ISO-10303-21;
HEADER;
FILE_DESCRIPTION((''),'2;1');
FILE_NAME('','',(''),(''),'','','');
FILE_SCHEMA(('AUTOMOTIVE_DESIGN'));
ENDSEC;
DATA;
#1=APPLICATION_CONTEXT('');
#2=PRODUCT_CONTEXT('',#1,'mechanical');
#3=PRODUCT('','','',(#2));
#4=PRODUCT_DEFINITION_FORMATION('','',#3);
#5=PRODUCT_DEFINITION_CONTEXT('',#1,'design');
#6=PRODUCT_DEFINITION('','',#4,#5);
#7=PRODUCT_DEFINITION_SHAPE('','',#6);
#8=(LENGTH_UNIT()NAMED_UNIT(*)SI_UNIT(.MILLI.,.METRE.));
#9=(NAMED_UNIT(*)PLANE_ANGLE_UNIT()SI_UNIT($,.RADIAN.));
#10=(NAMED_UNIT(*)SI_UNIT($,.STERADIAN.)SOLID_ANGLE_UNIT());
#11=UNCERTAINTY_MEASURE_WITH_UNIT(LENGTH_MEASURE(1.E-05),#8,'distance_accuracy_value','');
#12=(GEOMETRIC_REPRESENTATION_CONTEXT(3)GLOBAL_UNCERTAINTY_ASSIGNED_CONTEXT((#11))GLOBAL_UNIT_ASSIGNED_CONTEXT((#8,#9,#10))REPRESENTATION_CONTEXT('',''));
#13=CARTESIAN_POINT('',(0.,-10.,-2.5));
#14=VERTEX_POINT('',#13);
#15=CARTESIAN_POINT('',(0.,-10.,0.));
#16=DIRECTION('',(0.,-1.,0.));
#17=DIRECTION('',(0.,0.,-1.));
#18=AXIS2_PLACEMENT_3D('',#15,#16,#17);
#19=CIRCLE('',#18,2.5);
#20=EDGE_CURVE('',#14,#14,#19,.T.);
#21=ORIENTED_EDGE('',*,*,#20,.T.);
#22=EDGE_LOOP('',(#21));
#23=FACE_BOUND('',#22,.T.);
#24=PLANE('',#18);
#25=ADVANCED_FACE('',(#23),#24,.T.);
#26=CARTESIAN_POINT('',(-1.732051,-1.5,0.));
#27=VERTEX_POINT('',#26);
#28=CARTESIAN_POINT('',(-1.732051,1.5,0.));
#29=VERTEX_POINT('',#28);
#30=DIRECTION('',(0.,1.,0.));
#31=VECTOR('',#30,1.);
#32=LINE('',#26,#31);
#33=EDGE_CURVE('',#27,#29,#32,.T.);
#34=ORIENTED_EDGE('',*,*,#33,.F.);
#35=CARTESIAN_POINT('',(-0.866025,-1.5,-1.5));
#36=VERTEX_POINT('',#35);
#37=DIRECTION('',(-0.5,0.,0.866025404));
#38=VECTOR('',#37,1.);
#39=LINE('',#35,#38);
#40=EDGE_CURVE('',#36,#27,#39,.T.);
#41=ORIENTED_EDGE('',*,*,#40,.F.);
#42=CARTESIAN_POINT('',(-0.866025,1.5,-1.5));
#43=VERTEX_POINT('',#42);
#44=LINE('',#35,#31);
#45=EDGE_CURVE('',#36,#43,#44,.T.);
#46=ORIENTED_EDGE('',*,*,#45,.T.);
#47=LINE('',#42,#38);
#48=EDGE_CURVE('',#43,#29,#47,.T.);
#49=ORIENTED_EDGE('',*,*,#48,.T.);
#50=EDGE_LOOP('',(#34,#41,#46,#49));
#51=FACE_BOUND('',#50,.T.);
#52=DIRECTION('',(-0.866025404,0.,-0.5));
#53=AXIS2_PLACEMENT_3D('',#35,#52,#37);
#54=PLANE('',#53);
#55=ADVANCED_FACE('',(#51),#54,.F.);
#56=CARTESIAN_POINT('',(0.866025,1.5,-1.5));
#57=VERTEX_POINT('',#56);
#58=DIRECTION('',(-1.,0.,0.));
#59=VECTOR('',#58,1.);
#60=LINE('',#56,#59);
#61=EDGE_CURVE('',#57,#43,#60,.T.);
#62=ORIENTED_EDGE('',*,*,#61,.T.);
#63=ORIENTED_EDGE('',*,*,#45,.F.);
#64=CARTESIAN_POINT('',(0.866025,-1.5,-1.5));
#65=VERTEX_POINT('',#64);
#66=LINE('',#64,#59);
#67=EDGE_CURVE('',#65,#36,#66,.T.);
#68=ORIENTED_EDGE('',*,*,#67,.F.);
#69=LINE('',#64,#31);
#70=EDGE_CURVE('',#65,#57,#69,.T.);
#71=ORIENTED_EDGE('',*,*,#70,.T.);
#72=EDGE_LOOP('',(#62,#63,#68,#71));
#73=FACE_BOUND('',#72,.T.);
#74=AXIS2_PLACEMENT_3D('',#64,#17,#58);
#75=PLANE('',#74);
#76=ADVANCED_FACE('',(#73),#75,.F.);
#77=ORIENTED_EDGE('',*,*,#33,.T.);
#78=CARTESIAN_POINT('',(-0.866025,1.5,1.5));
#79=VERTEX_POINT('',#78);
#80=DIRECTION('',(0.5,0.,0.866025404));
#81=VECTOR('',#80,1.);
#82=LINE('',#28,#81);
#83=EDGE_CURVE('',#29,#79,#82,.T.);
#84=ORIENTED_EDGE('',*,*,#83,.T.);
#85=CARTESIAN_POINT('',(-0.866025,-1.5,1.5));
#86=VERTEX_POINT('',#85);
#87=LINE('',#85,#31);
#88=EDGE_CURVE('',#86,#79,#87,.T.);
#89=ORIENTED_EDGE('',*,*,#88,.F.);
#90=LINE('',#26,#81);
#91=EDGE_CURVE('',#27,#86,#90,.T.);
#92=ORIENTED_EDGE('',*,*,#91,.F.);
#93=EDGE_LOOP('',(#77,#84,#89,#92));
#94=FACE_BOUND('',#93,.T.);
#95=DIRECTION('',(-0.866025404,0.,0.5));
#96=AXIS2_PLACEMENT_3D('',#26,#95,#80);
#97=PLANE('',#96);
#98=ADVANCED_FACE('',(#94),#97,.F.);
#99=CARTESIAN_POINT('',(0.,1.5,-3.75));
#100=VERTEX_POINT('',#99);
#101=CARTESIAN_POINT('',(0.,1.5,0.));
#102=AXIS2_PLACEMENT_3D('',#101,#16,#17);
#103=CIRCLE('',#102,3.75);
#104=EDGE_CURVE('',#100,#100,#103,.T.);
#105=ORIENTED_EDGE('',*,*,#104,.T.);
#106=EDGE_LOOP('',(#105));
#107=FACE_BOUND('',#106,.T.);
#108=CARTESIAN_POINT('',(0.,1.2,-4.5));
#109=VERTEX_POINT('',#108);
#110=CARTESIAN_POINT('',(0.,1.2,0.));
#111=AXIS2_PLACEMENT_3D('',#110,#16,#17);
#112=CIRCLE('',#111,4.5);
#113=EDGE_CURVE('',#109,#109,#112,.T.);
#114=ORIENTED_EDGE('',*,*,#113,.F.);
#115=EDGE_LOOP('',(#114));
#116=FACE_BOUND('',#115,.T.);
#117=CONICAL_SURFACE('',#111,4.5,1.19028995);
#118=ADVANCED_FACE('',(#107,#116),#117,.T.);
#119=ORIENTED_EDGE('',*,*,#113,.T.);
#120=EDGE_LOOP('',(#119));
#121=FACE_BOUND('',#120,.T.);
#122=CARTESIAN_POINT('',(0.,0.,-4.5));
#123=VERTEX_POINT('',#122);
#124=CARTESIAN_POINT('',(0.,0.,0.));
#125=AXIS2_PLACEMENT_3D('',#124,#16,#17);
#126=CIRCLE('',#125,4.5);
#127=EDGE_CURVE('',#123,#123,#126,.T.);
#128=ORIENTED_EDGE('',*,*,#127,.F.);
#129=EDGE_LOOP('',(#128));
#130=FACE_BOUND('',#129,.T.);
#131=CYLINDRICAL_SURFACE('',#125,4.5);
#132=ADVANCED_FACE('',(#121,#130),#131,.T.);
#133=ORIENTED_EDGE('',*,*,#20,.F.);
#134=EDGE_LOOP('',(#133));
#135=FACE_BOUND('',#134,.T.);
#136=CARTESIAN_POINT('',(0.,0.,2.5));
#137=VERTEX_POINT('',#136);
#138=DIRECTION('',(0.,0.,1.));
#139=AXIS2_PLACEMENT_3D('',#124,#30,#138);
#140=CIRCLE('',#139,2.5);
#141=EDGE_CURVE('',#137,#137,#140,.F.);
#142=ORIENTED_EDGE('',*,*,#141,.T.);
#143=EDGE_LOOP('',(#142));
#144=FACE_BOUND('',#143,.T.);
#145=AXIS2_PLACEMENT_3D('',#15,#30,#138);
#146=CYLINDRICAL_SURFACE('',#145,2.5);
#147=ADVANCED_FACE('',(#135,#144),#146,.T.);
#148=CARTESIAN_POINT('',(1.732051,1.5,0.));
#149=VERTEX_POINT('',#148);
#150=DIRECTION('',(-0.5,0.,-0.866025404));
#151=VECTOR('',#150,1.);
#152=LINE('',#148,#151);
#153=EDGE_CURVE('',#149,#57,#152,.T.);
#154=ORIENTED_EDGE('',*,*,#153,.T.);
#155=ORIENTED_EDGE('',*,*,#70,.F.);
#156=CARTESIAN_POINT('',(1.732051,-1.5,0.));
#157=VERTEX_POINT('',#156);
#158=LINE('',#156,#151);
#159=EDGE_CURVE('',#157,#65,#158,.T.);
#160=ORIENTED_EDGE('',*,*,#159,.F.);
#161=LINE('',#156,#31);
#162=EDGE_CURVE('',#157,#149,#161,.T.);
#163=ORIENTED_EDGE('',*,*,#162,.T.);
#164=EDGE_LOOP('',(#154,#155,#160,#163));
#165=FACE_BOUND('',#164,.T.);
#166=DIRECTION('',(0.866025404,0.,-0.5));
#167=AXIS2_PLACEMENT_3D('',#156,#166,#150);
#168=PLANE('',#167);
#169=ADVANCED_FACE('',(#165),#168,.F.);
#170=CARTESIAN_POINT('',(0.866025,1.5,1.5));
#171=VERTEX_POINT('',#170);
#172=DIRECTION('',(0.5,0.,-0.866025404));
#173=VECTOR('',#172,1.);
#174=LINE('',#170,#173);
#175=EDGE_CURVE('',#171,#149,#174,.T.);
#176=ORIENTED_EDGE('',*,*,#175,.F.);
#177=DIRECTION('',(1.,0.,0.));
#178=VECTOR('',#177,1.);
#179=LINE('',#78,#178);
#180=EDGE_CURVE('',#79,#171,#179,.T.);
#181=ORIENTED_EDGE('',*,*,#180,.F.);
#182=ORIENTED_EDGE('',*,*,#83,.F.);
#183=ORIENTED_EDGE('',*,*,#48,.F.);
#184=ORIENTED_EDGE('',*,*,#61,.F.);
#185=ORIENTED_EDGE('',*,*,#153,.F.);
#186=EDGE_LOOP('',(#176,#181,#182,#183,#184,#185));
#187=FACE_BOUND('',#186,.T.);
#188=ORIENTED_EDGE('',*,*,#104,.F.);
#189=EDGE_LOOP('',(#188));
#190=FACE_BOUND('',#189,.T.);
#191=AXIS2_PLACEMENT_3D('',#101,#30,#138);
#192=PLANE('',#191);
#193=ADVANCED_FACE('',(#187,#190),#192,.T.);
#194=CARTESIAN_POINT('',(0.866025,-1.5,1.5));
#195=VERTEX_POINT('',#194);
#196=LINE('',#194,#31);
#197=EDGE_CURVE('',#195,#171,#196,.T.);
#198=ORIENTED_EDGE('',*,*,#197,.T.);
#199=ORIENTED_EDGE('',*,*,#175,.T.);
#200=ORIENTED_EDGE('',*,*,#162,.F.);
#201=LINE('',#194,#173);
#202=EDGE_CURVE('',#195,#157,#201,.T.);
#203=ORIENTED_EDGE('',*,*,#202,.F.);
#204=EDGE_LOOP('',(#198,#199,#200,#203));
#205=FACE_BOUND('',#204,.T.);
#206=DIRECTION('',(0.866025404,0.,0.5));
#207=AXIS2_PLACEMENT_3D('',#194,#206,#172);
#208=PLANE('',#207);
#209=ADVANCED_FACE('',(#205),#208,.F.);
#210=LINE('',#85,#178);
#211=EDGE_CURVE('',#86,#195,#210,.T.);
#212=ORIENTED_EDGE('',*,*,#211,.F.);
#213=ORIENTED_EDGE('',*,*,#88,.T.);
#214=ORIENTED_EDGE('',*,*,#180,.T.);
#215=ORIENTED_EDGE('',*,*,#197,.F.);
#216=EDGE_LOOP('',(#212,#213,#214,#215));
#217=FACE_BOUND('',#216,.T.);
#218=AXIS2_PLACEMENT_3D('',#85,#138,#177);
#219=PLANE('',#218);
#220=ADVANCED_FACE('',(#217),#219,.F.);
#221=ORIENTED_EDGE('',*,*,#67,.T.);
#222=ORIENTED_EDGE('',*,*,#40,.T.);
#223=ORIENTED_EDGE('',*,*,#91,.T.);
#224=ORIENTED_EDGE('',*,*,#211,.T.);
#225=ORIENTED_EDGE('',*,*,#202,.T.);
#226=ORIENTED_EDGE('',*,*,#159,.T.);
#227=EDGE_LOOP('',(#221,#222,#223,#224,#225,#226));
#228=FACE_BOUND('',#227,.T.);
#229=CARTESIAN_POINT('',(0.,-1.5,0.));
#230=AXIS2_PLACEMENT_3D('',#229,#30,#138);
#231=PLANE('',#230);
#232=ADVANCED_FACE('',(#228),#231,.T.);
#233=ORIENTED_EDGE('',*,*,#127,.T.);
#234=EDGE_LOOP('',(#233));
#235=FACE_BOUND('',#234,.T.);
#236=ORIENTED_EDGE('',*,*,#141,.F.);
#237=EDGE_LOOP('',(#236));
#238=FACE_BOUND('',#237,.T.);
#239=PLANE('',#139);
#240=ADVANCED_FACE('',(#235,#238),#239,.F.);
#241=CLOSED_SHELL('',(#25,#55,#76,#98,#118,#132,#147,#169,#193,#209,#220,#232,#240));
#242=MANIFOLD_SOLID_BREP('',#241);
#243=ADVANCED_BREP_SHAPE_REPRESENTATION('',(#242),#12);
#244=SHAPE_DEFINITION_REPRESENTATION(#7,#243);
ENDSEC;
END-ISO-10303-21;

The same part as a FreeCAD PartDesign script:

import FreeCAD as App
import Part
import Sketcher
Q = App.Units.Quantity


def add_polygon(sketch, points):
    """Adds a closed chain of lines whose ends are joined by coincident constraints."""
    first, n = sketch.GeometryCount, len(points)
    for a, b in zip(points, points[1:] + points[:1]):
        sketch.addGeometry(Part.LineSegment(App.Vector(*a, 0), App.Vector(*b, 0)), False)
    for i in range(n):
        sketch.addConstraint(Sketcher.Constraint("Coincident", first + i, 2, first + (i + 1) % n, 1))

doc = App.newDocument("Part")
body = doc.addObject("PartDesign::Body", "Body")

sketch1 = body.newObject("Sketcher::SketchObject", "Sketch")
sketch1.AttachmentSupport = (doc.getObject("XY_Plane"), [""])
sketch1.MapMode = "FlatFace"
add_polygon(sketch1, [(0, 0), (0, 1.5), (-3.75, 1.5), (-4.5, 1.2), (-4.5, 0)])
sketch1.addConstraint([
    Sketcher.Constraint("Vertical", 0),
    Sketcher.Constraint("Horizontal", 1),
    Sketcher.Constraint("Vertical", 3),
    Sketcher.Constraint("Horizontal", 4),
    Sketcher.Constraint("Coincident", 4, 2, -1, 1),
    Sketcher.Constraint("DistanceX", 4, 1, 4, 2, 4.5),
    Sketcher.Constraint("DistanceY", 0, 1, 0, 2, 1.5),
    Sketcher.Constraint("DistanceY", 3, 2, 3, 1, 1.2),
    Sketcher.Constraint("DistanceX", 1, 2, 1, 1, 3.75),
])
revolution = body.newObject("PartDesign::Revolution", "Revolution")
revolution.Profile = sketch1
revolution.ReferenceAxis = (sketch1, ["V_Axis"])
revolution.Angle = 360

sketch2 = body.newObject("Sketcher::SketchObject", "Sketch001")
sketch2.AttachmentSupport = (doc.getObject("XZ_Plane"), [""])
sketch2.MapMode = "FlatFace"
sketch2.addGeometry(Part.Circle(App.Vector(0, 0, 0), App.Vector(0, 0, 1), 2.5), False)
sketch2.addConstraint([
    Sketcher.Constraint("Coincident", 0, 3, -1, 1),
    Sketcher.Constraint("Diameter", 0, 5.0),
])
pad1 = body.newObject("PartDesign::Pad", "Pad")
pad1.Profile = sketch2
pad1.Length = 10

sketch3 = body.newObject("Sketcher::SketchObject", "Sketch002")
sketch3.AttachmentSupport = (doc.getObject("XZ_Plane"), [""])
sketch3.MapMode = "FlatFace"
sketch3.AttachmentOffset = App.Placement(App.Vector(0, 0, -1.5), App.Rotation())
add_polygon(sketch3, [(1.732051, 0), (0.866025, -1.5), (-0.866025, -1.5), (-1.732051, 0), (-0.866025, 1.5), (0.866025, 1.5)])
sketch3.addConstraint([
    Sketcher.Constraint("Horizontal", 1),
    Sketcher.Constraint("Horizontal", 4),
    Sketcher.Constraint("Symmetric", 0, 2, 3, 2, -1, 1),
    Sketcher.Constraint("Symmetric", 2, 2, 5, 2, -1, 1),
    Sketcher.Constraint("PointOnObject", 2, 2, -1),
    Sketcher.Constraint("Parallel", 2, 5),
    Sketcher.Constraint("Vertical", 1, 2, 3, 2),
    Sketcher.Constraint("Angle", 0, Q("-120 deg")),
    Sketcher.Constraint("DistanceY", 1, 2, 3, 2, 3.0),
    Sketcher.Constraint("DistanceX", 1, 2, 1, 1, 1.732051),
])
pocket1 = body.newObject("PartDesign::Pocket", "Pocket")
pocket1.Profile = sketch3
pocket1.Length = 3
pocket1.Reversed = True

doc.recompute()
